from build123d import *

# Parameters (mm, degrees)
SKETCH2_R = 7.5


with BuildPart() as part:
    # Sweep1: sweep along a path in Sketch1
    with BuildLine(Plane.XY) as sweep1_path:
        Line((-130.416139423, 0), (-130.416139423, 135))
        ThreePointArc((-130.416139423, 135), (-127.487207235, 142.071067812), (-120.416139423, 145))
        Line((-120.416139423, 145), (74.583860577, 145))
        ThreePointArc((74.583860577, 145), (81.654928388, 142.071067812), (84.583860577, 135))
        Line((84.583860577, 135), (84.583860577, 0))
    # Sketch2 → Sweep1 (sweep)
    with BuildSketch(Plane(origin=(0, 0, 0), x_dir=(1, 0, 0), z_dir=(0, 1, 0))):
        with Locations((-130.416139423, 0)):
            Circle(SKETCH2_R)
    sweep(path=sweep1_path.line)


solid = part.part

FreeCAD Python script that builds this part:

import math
import FreeCAD as App
import Part
import Sketcher

V = App.Vector

doc = App.newDocument("Part")
params = doc.addObject("Spreadsheet::Sheet", "Params")
for row, (alias, value) in enumerate([
    ("sketch1_diameter", "15 mm"),
    ("sketch2_radius", "10 mm"),
    ("sketch2_width", "195 mm"),
    ("sketch2_height", "135 mm"),
], start=1):
    params.set(f"A{row}", alias)
    params.set(f"B{row}", "=" + value)
    params.setAlias(f"B{row}", alias)

body = doc.addObject("PartDesign::Body", "Body")

# Sketch on XZ plane
sketch1 = body.newObject("Sketcher::SketchObject", "Sketch")
sketch1.AttachmentSupport = (doc.getObject("XZ_Plane"), [""])
sketch1.MapMode = "FlatFace"
sketch1.addGeometry(Part.Circle(V(-130.416139, 0, 0), V(0, 0, 1), 7.5), False)
sketch1.addConstraint([
    Sketcher.Constraint("PointOnObject", 0, 3, -1),
    Sketcher.Constraint("Diameter", 0, 15.0),
    Sketcher.Constraint("DistanceX", 0, 3, -1, 1, 130.416139),
])
sketch1.setExpression("Constraints[1]", "Params.sketch1_diameter")

# Sketch on XY plane
sketch2 = body.newObject("Sketcher::SketchObject", "Sketch001")
sketch2.AttachmentSupport = (doc.getObject("XY_Plane"), [""])
sketch2.MapMode = "FlatFace"
sketch2.addGeometry([
    Part.LineSegment(V(-130.416139, 0, 0), V(-130.416139, 135, 0)),  # 0
    Part.ArcOfCircle(Part.Circle(V(-120.416139, 135, 0), V(0, 0, 1), 10), math.radians(90), math.radians(180)),  # 1
    Part.LineSegment(V(-120.416139, 145, 0), V(74.583861, 145, 0)),  # 2
    Part.ArcOfCircle(Part.Circle(V(74.583861, 135, 0), V(0, 0, 1), 10), math.radians(0), math.radians(90)),  # 3
    Part.LineSegment(V(84.583861, 135, 0), V(84.583861, 0, 0)),  # 4
], False)
sketch2.addConstraint([
    Sketcher.Constraint("Tangent", 0, 2, 1, 2),
    Sketcher.Constraint("Tangent", 1, 1, 2, 1),
    Sketcher.Constraint("Tangent", 2, 2, 3, 2),
    Sketcher.Constraint("Tangent", 3, 1, 4, 1),
    Sketcher.Constraint("Vertical", 0),
    Sketcher.Constraint("Horizontal", 2),
    Sketcher.Constraint("Vertical", 4),
    Sketcher.Constraint("Equal", 1, 3),
    Sketcher.Constraint("PointOnObject", 0, 1, -1),
    Sketcher.Constraint("PointOnObject", 4, 2, -1),
    Sketcher.Constraint("Radius", 1, 10.0),
    Sketcher.Constraint("DistanceX", 2, 1, 2, 2, 195.0),
    Sketcher.Constraint("DistanceY", 0, 1, 0, 2, 135.0),
    Sketcher.Constraint("DistanceX", 1, 3, -1, 1, 120.416139),
])
sketch2.setExpression("Constraints[10]", "Params.sketch2_radius")
sketch2.setExpression("Constraints[11]", "Params.sketch2_width")
sketch2.setExpression("Constraints[12]", "Params.sketch2_height")
doc.recompute()

additivepipe = body.newObject("PartDesign::AdditivePipe", "AdditivePipe")
additivepipe.Profile = sketch1
additivepipe.Spine = (sketch2, ["Edge1", "Edge2", "Edge3", "Edge4", "Edge5"])

doc.recompute()
